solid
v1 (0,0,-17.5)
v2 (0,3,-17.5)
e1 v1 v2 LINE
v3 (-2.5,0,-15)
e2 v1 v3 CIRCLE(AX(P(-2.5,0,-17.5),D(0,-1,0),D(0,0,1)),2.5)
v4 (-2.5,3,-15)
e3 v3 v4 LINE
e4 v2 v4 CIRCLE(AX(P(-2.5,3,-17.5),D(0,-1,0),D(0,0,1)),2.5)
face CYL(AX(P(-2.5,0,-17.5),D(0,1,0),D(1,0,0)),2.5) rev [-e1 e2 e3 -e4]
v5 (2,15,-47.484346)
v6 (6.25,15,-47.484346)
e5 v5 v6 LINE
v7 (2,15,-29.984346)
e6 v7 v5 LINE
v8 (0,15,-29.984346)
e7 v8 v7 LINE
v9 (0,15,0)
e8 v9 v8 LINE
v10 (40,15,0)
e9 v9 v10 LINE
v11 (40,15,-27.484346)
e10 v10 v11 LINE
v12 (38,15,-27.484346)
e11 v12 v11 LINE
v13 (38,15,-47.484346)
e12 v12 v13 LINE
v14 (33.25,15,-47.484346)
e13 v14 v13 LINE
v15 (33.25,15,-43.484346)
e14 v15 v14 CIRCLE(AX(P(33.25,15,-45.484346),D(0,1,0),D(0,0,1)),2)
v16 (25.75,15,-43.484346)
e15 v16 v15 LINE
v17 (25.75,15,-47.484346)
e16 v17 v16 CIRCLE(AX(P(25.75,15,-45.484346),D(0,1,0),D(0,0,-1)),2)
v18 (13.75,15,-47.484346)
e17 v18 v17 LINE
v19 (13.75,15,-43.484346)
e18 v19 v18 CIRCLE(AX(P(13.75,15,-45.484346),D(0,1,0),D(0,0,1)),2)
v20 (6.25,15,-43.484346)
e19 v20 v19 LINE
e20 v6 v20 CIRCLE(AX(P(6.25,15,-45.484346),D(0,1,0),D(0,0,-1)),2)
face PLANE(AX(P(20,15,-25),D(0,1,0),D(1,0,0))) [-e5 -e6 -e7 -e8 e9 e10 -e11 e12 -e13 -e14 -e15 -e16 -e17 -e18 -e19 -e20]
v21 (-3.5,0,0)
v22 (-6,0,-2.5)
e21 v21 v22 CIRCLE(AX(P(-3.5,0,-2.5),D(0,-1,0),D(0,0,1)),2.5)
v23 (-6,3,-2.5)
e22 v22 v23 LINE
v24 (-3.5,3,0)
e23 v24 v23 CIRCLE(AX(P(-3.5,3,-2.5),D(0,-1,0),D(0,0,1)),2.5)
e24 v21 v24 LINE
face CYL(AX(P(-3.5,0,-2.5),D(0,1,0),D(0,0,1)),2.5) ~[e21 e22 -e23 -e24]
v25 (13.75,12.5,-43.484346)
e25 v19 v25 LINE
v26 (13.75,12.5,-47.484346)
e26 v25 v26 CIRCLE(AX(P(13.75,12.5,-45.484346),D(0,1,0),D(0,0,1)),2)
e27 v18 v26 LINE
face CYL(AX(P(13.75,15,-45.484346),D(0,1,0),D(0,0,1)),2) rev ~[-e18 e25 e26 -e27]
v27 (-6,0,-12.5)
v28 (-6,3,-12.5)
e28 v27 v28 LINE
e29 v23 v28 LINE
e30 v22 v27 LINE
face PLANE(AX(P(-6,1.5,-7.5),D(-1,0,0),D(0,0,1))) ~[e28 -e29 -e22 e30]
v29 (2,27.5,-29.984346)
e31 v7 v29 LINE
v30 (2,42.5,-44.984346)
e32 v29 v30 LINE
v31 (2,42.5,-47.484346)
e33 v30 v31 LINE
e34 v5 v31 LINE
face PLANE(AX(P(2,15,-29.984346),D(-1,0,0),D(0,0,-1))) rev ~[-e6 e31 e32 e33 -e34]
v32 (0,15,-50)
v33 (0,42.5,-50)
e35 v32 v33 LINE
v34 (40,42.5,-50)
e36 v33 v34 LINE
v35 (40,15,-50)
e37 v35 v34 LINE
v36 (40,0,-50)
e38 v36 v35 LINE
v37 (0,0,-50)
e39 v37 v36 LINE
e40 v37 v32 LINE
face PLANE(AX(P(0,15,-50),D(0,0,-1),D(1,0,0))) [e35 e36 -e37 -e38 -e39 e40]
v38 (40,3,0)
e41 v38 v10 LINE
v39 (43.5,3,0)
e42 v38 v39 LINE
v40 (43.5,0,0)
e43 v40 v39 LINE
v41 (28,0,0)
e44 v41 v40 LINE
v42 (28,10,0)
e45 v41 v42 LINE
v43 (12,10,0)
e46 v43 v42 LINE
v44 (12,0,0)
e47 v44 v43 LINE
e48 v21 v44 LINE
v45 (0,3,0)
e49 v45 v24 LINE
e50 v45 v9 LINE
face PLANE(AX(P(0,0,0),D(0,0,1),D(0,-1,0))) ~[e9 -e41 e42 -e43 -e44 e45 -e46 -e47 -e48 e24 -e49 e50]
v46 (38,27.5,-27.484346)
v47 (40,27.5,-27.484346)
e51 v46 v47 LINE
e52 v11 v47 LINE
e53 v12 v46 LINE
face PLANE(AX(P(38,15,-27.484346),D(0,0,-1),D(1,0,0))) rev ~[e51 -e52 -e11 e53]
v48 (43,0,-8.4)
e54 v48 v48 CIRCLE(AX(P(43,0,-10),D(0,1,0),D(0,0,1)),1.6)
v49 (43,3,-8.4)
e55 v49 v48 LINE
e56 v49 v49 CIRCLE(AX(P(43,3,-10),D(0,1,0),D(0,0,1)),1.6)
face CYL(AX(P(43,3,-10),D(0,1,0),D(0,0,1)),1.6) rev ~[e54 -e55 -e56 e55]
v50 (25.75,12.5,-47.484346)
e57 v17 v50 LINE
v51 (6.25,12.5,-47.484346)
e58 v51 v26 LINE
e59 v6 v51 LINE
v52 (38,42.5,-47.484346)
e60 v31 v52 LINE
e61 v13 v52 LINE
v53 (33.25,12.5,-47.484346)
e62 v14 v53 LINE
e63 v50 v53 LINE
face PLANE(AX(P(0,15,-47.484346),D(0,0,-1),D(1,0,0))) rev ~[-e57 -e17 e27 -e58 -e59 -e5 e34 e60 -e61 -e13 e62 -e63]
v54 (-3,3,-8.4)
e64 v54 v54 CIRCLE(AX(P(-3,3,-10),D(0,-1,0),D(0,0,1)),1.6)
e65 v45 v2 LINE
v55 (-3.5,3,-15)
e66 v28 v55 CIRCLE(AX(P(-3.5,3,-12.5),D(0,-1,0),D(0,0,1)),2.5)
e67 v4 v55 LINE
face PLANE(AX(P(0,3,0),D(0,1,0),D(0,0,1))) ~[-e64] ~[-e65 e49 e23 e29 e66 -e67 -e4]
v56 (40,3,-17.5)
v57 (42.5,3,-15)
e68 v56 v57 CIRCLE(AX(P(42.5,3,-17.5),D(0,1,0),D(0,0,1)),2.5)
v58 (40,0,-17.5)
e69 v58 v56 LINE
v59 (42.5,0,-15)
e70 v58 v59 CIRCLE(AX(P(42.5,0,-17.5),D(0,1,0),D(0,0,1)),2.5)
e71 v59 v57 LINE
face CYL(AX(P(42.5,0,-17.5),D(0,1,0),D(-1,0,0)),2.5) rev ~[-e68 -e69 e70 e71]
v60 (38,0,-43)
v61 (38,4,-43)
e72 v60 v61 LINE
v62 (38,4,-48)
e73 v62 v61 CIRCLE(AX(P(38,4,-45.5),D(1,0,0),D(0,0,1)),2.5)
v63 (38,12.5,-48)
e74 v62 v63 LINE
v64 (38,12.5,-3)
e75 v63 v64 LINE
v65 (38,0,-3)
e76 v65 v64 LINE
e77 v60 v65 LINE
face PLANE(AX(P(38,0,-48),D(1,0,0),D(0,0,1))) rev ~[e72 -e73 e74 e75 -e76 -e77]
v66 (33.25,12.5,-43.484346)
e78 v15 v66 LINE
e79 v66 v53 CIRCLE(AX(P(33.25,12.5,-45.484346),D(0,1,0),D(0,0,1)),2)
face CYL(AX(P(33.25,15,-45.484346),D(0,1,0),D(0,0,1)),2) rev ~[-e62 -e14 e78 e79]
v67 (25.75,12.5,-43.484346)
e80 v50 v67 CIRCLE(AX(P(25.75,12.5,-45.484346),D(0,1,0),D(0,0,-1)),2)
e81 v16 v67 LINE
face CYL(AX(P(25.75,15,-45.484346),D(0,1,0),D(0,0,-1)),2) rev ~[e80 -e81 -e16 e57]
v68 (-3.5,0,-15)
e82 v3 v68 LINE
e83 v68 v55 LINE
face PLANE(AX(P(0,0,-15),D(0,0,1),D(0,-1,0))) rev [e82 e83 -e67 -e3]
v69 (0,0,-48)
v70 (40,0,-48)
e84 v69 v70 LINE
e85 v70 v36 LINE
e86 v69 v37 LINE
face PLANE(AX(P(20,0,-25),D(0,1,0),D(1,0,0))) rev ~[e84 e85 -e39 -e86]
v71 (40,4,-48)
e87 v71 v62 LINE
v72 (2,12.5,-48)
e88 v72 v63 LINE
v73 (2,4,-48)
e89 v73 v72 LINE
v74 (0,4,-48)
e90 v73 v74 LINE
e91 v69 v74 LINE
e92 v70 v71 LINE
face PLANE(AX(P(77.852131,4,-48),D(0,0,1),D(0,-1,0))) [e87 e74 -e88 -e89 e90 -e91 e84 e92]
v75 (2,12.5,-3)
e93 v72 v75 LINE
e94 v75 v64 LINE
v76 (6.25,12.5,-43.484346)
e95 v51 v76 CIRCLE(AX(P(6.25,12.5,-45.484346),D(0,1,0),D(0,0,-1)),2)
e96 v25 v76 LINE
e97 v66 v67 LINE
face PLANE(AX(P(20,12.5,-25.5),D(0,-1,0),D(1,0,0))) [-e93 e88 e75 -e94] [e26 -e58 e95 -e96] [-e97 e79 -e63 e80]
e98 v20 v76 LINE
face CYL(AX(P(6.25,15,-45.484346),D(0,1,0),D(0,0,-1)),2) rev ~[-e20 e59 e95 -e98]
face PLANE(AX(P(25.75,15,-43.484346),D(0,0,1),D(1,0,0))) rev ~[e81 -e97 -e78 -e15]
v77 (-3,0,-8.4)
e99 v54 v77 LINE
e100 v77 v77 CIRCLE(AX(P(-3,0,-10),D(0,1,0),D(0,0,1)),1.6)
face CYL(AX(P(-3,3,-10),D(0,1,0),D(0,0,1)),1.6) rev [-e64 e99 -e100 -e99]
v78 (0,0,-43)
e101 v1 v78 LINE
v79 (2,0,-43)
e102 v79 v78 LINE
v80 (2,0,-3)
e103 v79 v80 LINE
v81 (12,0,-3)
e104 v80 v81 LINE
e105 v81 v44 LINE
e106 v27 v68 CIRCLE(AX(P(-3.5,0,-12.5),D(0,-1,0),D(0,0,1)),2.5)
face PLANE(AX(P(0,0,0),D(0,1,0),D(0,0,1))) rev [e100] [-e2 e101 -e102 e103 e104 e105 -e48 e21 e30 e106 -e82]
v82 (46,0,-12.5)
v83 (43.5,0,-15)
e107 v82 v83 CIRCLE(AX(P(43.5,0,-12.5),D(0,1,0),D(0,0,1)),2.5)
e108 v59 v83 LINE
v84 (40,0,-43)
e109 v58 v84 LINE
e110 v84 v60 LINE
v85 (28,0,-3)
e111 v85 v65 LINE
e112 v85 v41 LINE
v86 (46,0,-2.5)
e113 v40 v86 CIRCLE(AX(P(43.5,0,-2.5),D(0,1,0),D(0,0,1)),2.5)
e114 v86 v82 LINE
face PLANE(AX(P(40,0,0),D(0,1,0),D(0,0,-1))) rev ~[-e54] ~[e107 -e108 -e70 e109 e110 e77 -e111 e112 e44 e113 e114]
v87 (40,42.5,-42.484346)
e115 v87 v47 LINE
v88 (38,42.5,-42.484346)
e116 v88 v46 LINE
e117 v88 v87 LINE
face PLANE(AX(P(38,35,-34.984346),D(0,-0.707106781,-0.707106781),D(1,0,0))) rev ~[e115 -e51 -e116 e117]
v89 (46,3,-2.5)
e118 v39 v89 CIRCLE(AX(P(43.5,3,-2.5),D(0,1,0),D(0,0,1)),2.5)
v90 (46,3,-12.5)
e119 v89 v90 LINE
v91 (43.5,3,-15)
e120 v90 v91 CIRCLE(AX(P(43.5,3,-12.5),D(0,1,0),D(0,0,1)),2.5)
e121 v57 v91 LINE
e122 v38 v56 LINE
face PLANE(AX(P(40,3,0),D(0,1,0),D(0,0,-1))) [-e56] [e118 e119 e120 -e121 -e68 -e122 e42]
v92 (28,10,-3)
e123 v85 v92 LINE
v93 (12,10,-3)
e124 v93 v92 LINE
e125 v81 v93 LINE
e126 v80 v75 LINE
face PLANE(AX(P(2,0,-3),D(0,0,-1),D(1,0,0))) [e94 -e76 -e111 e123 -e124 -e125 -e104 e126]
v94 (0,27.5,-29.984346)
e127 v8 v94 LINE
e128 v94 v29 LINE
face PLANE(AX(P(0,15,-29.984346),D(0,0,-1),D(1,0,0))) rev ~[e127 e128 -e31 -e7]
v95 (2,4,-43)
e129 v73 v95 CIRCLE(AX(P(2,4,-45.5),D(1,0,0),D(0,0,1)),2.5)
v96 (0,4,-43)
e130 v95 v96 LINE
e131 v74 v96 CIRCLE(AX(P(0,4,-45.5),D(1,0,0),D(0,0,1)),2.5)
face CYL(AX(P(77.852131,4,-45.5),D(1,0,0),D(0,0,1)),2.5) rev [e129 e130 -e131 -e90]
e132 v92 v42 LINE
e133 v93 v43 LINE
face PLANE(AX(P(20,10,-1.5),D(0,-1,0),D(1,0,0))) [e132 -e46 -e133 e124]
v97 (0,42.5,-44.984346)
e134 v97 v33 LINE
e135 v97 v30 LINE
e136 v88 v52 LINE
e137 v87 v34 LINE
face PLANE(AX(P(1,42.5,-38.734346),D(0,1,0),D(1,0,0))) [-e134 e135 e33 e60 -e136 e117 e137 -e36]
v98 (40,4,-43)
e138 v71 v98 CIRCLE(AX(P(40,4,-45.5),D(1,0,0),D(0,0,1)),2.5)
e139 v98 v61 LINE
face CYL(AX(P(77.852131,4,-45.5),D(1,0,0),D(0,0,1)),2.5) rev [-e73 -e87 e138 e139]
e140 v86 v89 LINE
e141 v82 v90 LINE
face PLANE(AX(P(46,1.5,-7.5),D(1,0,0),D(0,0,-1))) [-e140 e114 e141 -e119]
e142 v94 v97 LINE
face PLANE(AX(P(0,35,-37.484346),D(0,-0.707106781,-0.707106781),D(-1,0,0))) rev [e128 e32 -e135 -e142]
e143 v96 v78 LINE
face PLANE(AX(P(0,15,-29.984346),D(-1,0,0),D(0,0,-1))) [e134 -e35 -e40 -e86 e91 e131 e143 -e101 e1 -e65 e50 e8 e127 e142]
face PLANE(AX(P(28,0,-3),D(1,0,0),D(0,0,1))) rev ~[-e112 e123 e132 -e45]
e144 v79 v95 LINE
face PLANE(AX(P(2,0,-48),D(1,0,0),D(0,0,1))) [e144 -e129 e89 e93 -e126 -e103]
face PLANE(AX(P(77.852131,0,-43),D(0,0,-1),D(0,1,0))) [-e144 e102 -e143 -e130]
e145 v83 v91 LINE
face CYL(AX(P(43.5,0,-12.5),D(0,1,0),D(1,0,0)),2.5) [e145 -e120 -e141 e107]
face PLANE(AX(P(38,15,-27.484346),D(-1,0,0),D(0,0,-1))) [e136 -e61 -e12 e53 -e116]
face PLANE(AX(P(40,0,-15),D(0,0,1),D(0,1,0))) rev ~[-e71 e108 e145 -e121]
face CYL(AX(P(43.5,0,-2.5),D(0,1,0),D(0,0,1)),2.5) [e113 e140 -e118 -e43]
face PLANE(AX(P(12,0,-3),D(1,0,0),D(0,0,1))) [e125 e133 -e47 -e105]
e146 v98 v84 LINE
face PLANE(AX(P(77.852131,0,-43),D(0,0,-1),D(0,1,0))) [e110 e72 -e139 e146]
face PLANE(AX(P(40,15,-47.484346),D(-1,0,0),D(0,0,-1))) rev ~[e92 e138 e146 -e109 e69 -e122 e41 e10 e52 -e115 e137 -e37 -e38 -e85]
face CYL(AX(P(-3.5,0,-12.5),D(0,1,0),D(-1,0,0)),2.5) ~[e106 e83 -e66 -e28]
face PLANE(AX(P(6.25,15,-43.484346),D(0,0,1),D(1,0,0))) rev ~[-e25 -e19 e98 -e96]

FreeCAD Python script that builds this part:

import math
import FreeCAD as App
import Part
import Sketcher
from FreeCAD import Vector
Q = App.Units.Quantity


def edges_at(feature, points):
    """Names of the edges that pass closest to the given points."""
    edges = feature.Shape.Edges
    near = lambda p: min(range(len(edges)), key=lambda i: edges[i].distToShape(Part.Vertex(*p))[0])
    return sorted({f"Edge{near(p) + 1}" for p in points})


def add_polygon(sketch, points):
    """Adds a closed chain of lines whose ends are joined by coincident constraints."""
    first, n = sketch.GeometryCount, len(points)
    for a, b in zip(points, points[1:] + points[:1]):
        sketch.addGeometry(Part.LineSegment(App.Vector(*a, 0), App.Vector(*b, 0)), False)
    for i in range(n):
        sketch.addConstraint(Sketcher.Constraint("Coincident", first + i, 2, first + (i + 1) % n, 1))

doc = App.newDocument("Part")
body = doc.addObject("PartDesign::Body", "Body")

sketch1 = body.newObject("Sketcher::SketchObject", "Sketch")
sketch1.AttachmentSupport = (doc.getObject("XZ_Plane"), [""])
sketch1.MapMode = "FlatFace"
add_polygon(sketch1, [(0, -50), (0, 0), (40, 0), (40, -50)])
sketch1.addConstraint([
    Sketcher.Constraint("Vertical", 0),
    Sketcher.Constraint("Horizontal", 1),
    Sketcher.Constraint("Vertical", 2),
    Sketcher.Constraint("Horizontal", 3),
    Sketcher.Constraint("Coincident", 0, 2, -1, 1),
    Sketcher.Constraint("DistanceX", 1, 1, 1, 2, Q("40 mm")),
    Sketcher.Constraint("DistanceY", 0, 1, 0, 2, Q("50 mm")),
])
pad1 = body.newObject("PartDesign::Pad", "Pad")
pad1.Profile = sketch1
pad1.Length = 15
pad1.Reversed = True

sketch2 = body.newObject("Sketcher::SketchObject", "Sketch001")
sketch2.AttachmentSupport = (doc.getObject("XZ_Plane"), [""])
sketch2.MapMode = "FlatFace"
add_polygon(sketch2, [(12, 0), (12, -3), (28, -3), (28, 0)])
sketch2.addConstraint([
    Sketcher.Constraint("Vertical", 0),
    Sketcher.Constraint("Horizontal", 1),
    Sketcher.Constraint("Vertical", 2),
    Sketcher.Constraint("Horizontal", 3),
    Sketcher.Constraint("PointOnObject", 2, 2, -1),
    Sketcher.Constraint("DistanceX", 1, 1, 1, 2, Q("16 mm")),
    Sketcher.Constraint("DistanceY", 0, 2, 0, 1, Q("3 mm")),
    Sketcher.Constraint("DistanceX", -1, 1, 0, 2, Q("12 mm")),
])
pocket1 = body.newObject("PartDesign::Pocket", "Pocket")
pocket1.Profile = sketch2
pocket1.Length = 10

sketch3 = body.newObject("Sketcher::SketchObject", "Sketch002")
sketch3.AttachmentSupport = (doc.getObject("XZ_Plane"), [""])
sketch3.MapMode = "FlatFace"
add_polygon(sketch3, [(2, -3), (2, -48), (38, -48), (38, -3)])
sketch3.addConstraint([
    Sketcher.Constraint("Vertical", 0),
    Sketcher.Constraint("Horizontal", 1),
    Sketcher.Constraint("Vertical", 2),
    Sketcher.Constraint("Horizontal", 3),
    Sketcher.Constraint("DistanceX", 1, 1, 1, 2, Q("36 mm")),
    Sketcher.Constraint("DistanceY", 0, 2, 0, 1, Q("45 mm")),
    Sketcher.Constraint("DistanceX", -1, 1, 0, 2, Q("2 mm")),
    Sketcher.Constraint("DistanceY", 0, 2, -1, 1, Q("48 mm")),
])
pocket2 = body.newObject("PartDesign::Pocket", "Pocket001")
pocket2.Profile = sketch3
pocket2.Length = 12.5

sketch4 = body.newObject("Sketcher::SketchObject", "Sketch003")
sketch4.AttachmentSupport = (doc.getObject("XZ_Plane"), [""])
sketch4.MapMode = "FlatFace"
sketch4.AttachmentOffset = App.Placement(Vector(0, 0, -15), App.Rotation())
add_polygon(sketch4, [(0, -50), (0, -47.484346), (40, -47.484346), (40, -50)])
sketch4.addConstraint([
    Sketcher.Constraint("Vertical", 0),
    Sketcher.Constraint("Horizontal", 1),
    Sketcher.Constraint("Vertical", 2),
    Sketcher.Constraint("Horizontal", 3),
    Sketcher.Constraint("PointOnObject", 0, 2, -2),
    Sketcher.Constraint("DistanceX", 1, 1, 1, 2, Q("40 mm")),
    Sketcher.Constraint("DistanceY", 2, 2, -1, 1, Q("50 mm")),
    Sketcher.Constraint("DistanceY", 0, 1, 0, 2, Q("2.515654 mm")),
])
pad2 = body.newObject("PartDesign::Pad", "Pad001")
pad2.Profile = sketch4
pad2.Length = 27.5
pad2.Reversed = True

sketch5 = body.newObject("Sketcher::SketchObject", "Sketch004")
sketch5.AttachmentSupport = (doc.getObject("XZ_Plane"), [""])
sketch5.MapMode = "FlatFace"
sketch5.AttachmentOffset = App.Placement(Vector(0, 0, -15), App.Rotation())
sketch5.addGeometry([
    Part.LineSegment(Vector(13.75, -47.484346, 0), Vector(6.25, -47.484346, 0)),
    Part.ArcOfCircle(Part.Circle(Vector(6.25, -45.484346, 0), Vector(0, 0, 1), 2), math.radians(90), math.radians(270)),
    Part.LineSegment(Vector(6.25, -43.484346, 0), Vector(13.75, -43.484346, 0)),
    Part.ArcOfCircle(Part.Circle(Vector(13.75, -45.484346, 0), Vector(0, 0, 1), 2), math.radians(-90), math.radians(90)),
    Part.LineSegment(Vector(33.25, -47.484346, 0), Vector(25.75, -47.484346, 0)),
    Part.ArcOfCircle(Part.Circle(Vector(25.75, -45.484346, 0), Vector(0, 0, 1), 2), math.radians(90), math.radians(270)),
    Part.LineSegment(Vector(25.75, -43.484346, 0), Vector(33.25, -43.484346, 0)),
    Part.ArcOfCircle(Part.Circle(Vector(33.25, -45.484346, 0), Vector(0, 0, 1), 2), math.radians(-90), math.radians(90)),
], False)
sketch5.addConstraint([
    Sketcher.Constraint("Tangent", 0, 2, 1, 2),
    Sketcher.Constraint("Tangent", 1, 1, 2, 1),
    Sketcher.Constraint("Tangent", 2, 2, 3, 2),
    Sketcher.Constraint("Tangent", 3, 1, 0, 1),
    Sketcher.Constraint("Tangent", 4, 2, 5, 2),
    Sketcher.Constraint("Tangent", 5, 1, 6, 1),
    Sketcher.Constraint("Tangent", 6, 2, 7, 2),
    Sketcher.Constraint("Tangent", 7, 1, 4, 1),
    Sketcher.Constraint("Horizontal", 0),
    Sketcher.Constraint("Horizontal", 2),
    Sketcher.Constraint("Horizontal", 4),
    Sketcher.Constraint("Horizontal", 6),
    Sketcher.Constraint("Equal", 3, 5),
    Sketcher.Constraint("Horizontal", 3, 3, 5, 3),
    Sketcher.Constraint("Equal", 2, 4),
    Sketcher.Constraint("Radius", 1, Q("2 mm")),
    Sketcher.Constraint("DistanceX", 0, 2, 0, 1, Q("7.5 mm")),
    Sketcher.Constraint("DistanceX", 3, 3, 5, 3, Q("12 mm")),
    Sketcher.Constraint("DistanceX", -1, 1, 1, 3, Q("6.25 mm")),
    Sketcher.Constraint("DistanceY", 1, 3, -1, 1, Q("45.484346 mm")),
])
pocket3 = body.newObject("PartDesign::Pocket", "Pocket002")
pocket3.Profile = sketch5
pocket3.Type = "ThroughAll"
pocket3.Reversed = True

sketch6 = body.newObject("Sketcher::SketchObject", "Sketch005")
sketch6.AttachmentSupport = (doc.getObject("XZ_Plane"), [""])
sketch6.MapMode = "FlatFace"
sketch6.AttachmentOffset = App.Placement(Vector(0, 0, -15), App.Rotation())
add_polygon(sketch6, [(0, -47.484346), (0, -29.984346), (2, -29.984346), (2, -47.484346)])
add_polygon(sketch6, [(38, -47.484346), (38, -27.484346), (40, -27.484346), (40, -47.484346)])
sketch6.addConstraint([
    Sketcher.Constraint("Vertical", 0),
    Sketcher.Constraint("Horizontal", 1),
    Sketcher.Constraint("Vertical", 2),
    Sketcher.Constraint("Horizontal", 3),
    Sketcher.Constraint("Vertical", 4),
    Sketcher.Constraint("Horizontal", 5),
    Sketcher.Constraint("Vertical", 6),
    Sketcher.Constraint("Horizontal", 7),
    Sketcher.Constraint("PointOnObject", 0, 2, -2),
    Sketcher.Constraint("Horizontal", 3, 2, 6, 2),
    Sketcher.Constraint("Equal", 3, 5),
    Sketcher.Constraint("DistanceX", 1, 1, 1, 2, Q("2 mm")),
    Sketcher.Constraint("DistanceY", 4, 1, 4, 2, Q("20 mm")),
    Sketcher.Constraint("DistanceY", 0, 1, 0, 2, Q("17.5 mm")),
    Sketcher.Constraint("DistanceX", -1, 1, 4, 2, Q("38 mm")),
    Sketcher.Constraint("DistanceY", 0, 2, -1, 1, Q("29.984346 mm")),
])
pad3 = body.newObject("PartDesign::Pad", "Pad002")
pad3.Profile = sketch6
pad3.Length = 27.5
pad3.Reversed = True

sketch7 = body.newObject("Sketcher::SketchObject", "Sketch006")
sketch7.AttachmentSupport = (doc.getObject("YZ_Plane"), [""])
sketch7.MapMode = "FlatFace"
sketch7.addGeometry([
    Part.LineSegment(Vector(4, -48, 0), Vector(0, -48, 0)),
    Part.LineSegment(Vector(0, -48, 0), Vector(0, -43, 0)),
    Part.LineSegment(Vector(0, -43, 0), Vector(4, -43, 0)),
    Part.ArcOfCircle(Part.Circle(Vector(4, -45.5, 0), Vector(0, 0, 1), 2.5), math.radians(-90), math.radians(90)),
], False)
sketch7.addConstraint([
    Sketcher.Constraint("Coincident", 0, 2, 1, 1),
    Sketcher.Constraint("Coincident", 1, 2, 2, 1),
    Sketcher.Constraint("Tangent", 2, 2, 3, 2),
    Sketcher.Constraint("Tangent", 3, 1, 0, 1),
    Sketcher.Constraint("Horizontal", 0),
    Sketcher.Constraint("Vertical", 1),
    Sketcher.Constraint("Horizontal", 2),
    Sketcher.Constraint("PointOnObject", 0, 2, -2),
    Sketcher.Constraint("Radius", 3, Q("2.5 mm")),
    Sketcher.Constraint("DistanceX", 0, 2, 0, 1, Q("4 mm")),
    Sketcher.Constraint("DistanceY", 0, 2, -1, 1, Q("48 mm")),
])
pocket4 = body.newObject("PartDesign::Pocket", "Pocket003")
pocket4.Profile = sketch7
pocket4.Type = "ThroughAll"
pocket4.Midplane = True

sketch8 = body.newObject("Sketcher::SketchObject", "Sketch007")
sketch8.AttachmentSupport = (doc.getObject("YZ_Plane"), [""])
sketch8.MapMode = "FlatFace"
sketch8.AttachmentOffset = App.Placement(Vector(0, 0, 40), App.Rotation())
add_polygon(sketch8, [(3, 0), (0, 0), (0, -15), (3, -15)])
sketch8.addConstraint([
    Sketcher.Constraint("Horizontal", 0),
    Sketcher.Constraint("Vertical", 1),
    Sketcher.Constraint("Horizontal", 2),
    Sketcher.Constraint("Vertical", 3),
    Sketcher.Constraint("Coincident", 0, 2, -1, 1),
    Sketcher.Constraint("DistanceX", 0, 2, 0, 1, Q("3 mm")),
    Sketcher.Constraint("DistanceY", 1, 2, 1, 1, Q("15 mm")),
])
pad4 = body.newObject("PartDesign::Pad", "Pad003")
pad4.Profile = sketch8
pad4.Length = 6

sketch9 = body.newObject("Sketcher::SketchObject", "Sketch008")
sketch9.AttachmentSupport = (doc.getObject("XZ_Plane"), [""])
sketch9.MapMode = "FlatFace"
sketch9.AttachmentOffset = App.Placement(Vector(0, 0, -3), App.Rotation())
sketch9.addGeometry(Part.Circle(Vector(43, -10, 0), Vector(0, 0, 1), 1.6), False)
sketch9.addConstraint([
    Sketcher.Constraint("Diameter", 0, Q("3.2 mm")),
    Sketcher.Constraint("DistanceX", -1, 1, 0, 3, Q("43 mm")),
    Sketcher.Constraint("DistanceY", 0, 3, -1, 1, Q("10 mm")),
])
pocket5 = body.newObject("PartDesign::Pocket", "Pocket004")
pocket5.Profile = sketch9
pocket5.Type = "ThroughAll"
pocket5.Reversed = True
doc.recompute()

datumplane = body.newObject("PartDesign::Plane", "DatumPlane")
datumplane.AttachmentSupport = (doc.getObject("YZ_Plane"), [""])
datumplane.MapMode = "FlatFace"
datumplane.AttachmentOffset = App.Placement(Vector(0, 0, 20), App.Rotation())
mirrored = body.newObject("PartDesign::Mirrored", "Mirrored")
mirrored.Originals = [pad4, pocket5]
mirrored.MirrorPlane = (datumplane, [""])
body.Tip = mirrored
doc.recompute()

fillet = body.newObject("PartDesign::Fillet", "Fillet")
fillet.Base = (mirrored, edges_at(mirrored, [
    (40, 1.5, -15),
    (46, 1.5, 0),
    (46, 1.5, -15),
    (-6, 1.5, 0),
    (-6, 1.5, -15),
    (0, 1.5, -15),
]))
fillet.Radius = 2.5
doc.recompute()

chamfer = body.newObject("PartDesign::Chamfer", "Chamfer")
chamfer.Base = (fillet, edges_at(fillet, [(39, 42.5, -27.484), (1, 42.5, -29.984)]))
chamfer.Size = 15

doc.recompute()
